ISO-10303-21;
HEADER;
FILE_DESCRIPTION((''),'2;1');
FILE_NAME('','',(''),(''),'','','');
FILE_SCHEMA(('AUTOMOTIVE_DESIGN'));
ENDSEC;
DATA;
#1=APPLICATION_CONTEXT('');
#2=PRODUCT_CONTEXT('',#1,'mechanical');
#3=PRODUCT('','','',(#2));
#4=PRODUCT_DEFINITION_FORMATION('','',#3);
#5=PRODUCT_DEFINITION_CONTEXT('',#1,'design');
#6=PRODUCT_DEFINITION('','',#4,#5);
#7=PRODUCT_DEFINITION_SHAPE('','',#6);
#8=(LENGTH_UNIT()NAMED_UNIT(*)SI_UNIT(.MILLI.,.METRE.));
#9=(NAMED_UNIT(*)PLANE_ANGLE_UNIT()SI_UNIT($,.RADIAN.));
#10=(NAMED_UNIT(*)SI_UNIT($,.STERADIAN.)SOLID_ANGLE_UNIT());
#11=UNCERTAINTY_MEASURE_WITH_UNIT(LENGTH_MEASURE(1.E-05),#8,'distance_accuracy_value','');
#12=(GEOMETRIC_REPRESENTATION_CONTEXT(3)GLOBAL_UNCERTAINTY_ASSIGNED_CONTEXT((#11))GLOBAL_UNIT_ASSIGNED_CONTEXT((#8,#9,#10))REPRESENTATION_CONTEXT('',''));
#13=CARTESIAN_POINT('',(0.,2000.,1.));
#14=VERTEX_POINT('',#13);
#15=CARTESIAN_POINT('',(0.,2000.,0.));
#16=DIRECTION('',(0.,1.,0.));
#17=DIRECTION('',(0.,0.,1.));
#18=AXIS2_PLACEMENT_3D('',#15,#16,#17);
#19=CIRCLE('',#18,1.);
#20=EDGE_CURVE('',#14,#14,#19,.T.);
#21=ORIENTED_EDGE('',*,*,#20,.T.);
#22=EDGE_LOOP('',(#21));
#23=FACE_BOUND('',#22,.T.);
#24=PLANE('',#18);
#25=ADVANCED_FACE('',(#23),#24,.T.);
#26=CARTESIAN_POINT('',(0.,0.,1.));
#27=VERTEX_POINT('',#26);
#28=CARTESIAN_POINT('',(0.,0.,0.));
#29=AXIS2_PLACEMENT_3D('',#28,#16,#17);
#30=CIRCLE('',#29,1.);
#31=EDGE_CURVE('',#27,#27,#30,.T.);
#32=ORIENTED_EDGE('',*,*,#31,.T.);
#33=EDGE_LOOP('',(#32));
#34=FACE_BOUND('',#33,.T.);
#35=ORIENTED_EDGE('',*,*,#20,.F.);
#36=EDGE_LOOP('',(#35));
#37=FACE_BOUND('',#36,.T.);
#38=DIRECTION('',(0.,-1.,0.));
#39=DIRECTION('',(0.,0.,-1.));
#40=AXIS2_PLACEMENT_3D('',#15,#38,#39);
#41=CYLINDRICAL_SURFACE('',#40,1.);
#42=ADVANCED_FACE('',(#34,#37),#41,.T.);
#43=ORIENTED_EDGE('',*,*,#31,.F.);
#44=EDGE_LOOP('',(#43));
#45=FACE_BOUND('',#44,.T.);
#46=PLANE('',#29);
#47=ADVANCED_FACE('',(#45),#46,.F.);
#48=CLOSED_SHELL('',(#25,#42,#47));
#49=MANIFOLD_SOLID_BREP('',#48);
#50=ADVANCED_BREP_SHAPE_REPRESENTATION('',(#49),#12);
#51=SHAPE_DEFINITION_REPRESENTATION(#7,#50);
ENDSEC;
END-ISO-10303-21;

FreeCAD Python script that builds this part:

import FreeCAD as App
import Part
import Sketcher
from FreeCAD import Vector
Q = App.Units.Quantity

doc = App.newDocument("Part")
body = doc.addObject("PartDesign::Body", "Body")

sketch1 = body.newObject("Sketcher::SketchObject", "Sketch")
sketch1.AttachmentSupport = (doc.getObject("XZ_Plane"), [""])
sketch1.MapMode = "FlatFace"
sketch1.addGeometry(Part.Circle(Vector(0, 0, 0), Vector(0, 0, 1), 1), False)
sketch1.addConstraint([
    Sketcher.Constraint("Coincident", 0, 3, -1, 1),
    Sketcher.Constraint("Diameter", 0, Q("2 mm")),
])
pad1 = body.newObject("PartDesign::Pad", "Pad")
pad1.Profile = sketch1
pad1.Length = 2000
pad1.Reversed = True

doc.recompute()
